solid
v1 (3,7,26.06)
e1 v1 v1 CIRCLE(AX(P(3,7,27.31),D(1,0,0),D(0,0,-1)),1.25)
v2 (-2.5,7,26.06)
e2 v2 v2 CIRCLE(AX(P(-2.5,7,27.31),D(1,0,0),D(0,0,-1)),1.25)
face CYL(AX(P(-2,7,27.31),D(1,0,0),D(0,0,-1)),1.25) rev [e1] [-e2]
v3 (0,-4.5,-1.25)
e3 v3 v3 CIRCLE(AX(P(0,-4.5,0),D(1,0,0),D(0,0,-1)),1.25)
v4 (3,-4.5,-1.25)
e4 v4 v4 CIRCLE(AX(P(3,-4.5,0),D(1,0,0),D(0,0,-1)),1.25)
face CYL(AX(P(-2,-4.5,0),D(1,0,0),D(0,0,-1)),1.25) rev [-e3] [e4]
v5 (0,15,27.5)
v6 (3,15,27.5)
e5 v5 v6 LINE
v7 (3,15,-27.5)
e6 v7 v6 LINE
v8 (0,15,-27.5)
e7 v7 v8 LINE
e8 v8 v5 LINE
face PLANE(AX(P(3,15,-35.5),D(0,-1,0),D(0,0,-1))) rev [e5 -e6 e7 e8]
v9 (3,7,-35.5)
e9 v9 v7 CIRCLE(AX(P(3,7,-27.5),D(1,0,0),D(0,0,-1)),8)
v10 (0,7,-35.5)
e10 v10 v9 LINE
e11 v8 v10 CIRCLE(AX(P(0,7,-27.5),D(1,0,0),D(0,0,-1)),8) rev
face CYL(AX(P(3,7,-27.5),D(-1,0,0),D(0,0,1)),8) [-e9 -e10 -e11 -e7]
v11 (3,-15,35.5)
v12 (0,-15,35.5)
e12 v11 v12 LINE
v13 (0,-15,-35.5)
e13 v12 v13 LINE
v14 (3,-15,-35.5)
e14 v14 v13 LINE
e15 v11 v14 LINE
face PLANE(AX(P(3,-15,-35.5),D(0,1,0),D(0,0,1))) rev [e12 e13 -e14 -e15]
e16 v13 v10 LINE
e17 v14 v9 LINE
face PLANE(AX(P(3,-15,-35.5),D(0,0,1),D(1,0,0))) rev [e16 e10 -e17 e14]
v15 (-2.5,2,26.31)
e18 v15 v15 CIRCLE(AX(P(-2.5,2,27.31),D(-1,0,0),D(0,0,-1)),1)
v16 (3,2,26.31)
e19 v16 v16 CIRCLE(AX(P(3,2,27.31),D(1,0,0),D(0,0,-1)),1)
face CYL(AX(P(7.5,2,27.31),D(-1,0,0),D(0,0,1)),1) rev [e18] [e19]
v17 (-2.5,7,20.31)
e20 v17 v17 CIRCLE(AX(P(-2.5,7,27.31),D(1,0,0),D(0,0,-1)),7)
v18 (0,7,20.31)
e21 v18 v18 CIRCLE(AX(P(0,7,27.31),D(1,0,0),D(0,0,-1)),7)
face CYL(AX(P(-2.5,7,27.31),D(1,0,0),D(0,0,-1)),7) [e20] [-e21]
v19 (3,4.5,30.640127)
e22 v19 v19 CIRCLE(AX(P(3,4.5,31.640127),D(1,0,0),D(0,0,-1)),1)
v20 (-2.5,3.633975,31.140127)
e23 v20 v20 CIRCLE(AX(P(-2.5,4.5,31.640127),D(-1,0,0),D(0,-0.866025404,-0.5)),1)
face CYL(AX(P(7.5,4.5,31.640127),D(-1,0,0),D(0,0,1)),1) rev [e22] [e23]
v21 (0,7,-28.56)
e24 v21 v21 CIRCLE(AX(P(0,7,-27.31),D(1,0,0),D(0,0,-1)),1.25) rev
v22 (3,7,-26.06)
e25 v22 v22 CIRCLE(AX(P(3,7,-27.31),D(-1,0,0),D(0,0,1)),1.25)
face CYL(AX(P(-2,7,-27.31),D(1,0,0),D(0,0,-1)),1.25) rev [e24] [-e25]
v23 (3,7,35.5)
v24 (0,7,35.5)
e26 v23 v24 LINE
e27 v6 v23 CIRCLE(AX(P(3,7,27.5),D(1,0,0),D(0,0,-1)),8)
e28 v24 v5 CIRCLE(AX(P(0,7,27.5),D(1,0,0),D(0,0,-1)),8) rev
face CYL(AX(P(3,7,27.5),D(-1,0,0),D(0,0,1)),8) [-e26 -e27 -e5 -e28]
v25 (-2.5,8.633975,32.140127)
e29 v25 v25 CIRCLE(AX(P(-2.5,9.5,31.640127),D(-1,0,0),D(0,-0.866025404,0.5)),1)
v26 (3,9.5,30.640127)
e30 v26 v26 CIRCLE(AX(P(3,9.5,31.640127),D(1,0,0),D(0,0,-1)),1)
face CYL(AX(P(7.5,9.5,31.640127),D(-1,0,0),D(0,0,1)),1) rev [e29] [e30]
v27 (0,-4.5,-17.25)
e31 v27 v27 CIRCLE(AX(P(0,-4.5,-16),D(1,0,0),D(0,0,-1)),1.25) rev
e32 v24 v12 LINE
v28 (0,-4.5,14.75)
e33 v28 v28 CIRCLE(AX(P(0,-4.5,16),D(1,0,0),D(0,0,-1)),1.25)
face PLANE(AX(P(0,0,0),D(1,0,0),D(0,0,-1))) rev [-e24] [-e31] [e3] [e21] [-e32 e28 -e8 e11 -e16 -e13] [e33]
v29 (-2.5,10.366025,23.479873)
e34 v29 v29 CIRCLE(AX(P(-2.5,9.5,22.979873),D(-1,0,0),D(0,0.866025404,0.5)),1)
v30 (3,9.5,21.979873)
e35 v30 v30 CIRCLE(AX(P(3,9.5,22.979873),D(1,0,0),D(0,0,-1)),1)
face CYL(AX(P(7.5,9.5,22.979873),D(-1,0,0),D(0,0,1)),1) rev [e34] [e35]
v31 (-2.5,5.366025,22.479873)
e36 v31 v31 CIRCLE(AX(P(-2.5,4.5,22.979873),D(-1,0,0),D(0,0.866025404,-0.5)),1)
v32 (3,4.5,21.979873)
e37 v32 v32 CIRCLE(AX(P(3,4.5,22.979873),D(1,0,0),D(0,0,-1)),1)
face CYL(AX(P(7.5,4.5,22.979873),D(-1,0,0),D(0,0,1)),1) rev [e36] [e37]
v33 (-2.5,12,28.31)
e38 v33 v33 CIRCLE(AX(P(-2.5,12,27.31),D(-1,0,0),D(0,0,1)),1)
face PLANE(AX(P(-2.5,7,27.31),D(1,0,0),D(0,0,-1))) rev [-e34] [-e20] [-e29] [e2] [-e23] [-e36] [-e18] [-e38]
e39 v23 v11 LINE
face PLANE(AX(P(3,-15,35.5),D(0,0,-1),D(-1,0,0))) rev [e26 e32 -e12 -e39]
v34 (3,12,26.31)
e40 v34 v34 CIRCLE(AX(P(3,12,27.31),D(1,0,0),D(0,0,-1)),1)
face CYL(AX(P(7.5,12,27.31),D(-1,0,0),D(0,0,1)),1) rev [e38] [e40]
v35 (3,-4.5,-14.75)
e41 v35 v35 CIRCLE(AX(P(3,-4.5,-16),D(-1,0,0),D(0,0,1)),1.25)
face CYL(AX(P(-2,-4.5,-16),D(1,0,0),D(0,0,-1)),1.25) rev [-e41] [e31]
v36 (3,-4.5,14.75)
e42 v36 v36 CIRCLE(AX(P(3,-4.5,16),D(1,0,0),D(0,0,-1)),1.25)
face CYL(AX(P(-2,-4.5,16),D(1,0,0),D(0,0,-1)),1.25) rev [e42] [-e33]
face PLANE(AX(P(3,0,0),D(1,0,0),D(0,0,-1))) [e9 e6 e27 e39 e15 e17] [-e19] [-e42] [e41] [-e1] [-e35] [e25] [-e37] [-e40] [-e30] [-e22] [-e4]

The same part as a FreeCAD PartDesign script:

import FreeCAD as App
import Part
import Sketcher
Q = App.Units.Quantity


def edges_at(feature, points):
    """Names of the edges that pass closest to the given points."""
    edges = feature.Shape.Edges
    near = lambda p: min(range(len(edges)), key=lambda i: edges[i].distToShape(Part.Vertex(*p))[0])
    return sorted({f"Edge{near(p) + 1}" for p in points})


def add_polygon(sketch, points):
    """Adds a closed chain of lines whose ends are joined by coincident constraints."""
    first, n = sketch.GeometryCount, len(points)
    for a, b in zip(points, points[1:] + points[:1]):
        sketch.addGeometry(Part.LineSegment(App.Vector(*a, 0), App.Vector(*b, 0)), False)
    for i in range(n):
        sketch.addConstraint(Sketcher.Constraint("Coincident", first + i, 2, first + (i + 1) % n, 1))

doc = App.newDocument("Part")
body = doc.addObject("PartDesign::Body", "Body")

# Sketch on YZ plane
sketch1 = body.newObject("Sketcher::SketchObject", "Sketch")
sketch1.AttachmentSupport = (doc.getObject("YZ_Plane"), [""])
sketch1.MapMode = "FlatFace"
add_polygon(sketch1, [(15, 36), (-15, 36), (-15, -36), (15, -36)])  # lines 0-3
sketch1.addConstraint([
    Sketcher.Constraint("Horizontal", 0),
    Sketcher.Constraint("Vertical", 1),
    Sketcher.Constraint("Horizontal", 2),
    Sketcher.Constraint("Vertical", 3),
    Sketcher.Constraint("Symmetric", 0, 2, 2, 2, -1, 1),
    Sketcher.Constraint("DistanceX", 0, 2, 0, 1, Q("30 mm")),
    Sketcher.Constraint("DistanceY", 1, 2, 1, 1, Q("71 mm")),
])
pad1 = body.newObject("PartDesign::Pad", "Pad")
pad1.Profile = sketch1
pad1.Length = 3

# Sketch on YZ plane
sketch2 = body.newObject("Sketcher::SketchObject", "Sketch001")
sketch2.AttachmentSupport = (doc.getObject("YZ_Plane"), [""])
sketch2.MapMode = "FlatFace"
sketch2.AttachmentOffset = App.Placement(App.Vector(0, 0, 3), App.Rotation())
sketch2.addGeometry([
    Part.Circle(App.Vector(7, 27.3, 0), App.Vector(0, 0, 1), 1.2),
    Part.Circle(App.Vector(-4.5, 0, 0), App.Vector(0, 0, 1), 1.2),
    Part.Circle(App.Vector(-4.5, 16, 0), App.Vector(0, 0, 1), 1.2),
], False)
sketch2.addConstraint([
    Sketcher.Constraint("Equal", 0, 1),
    Sketcher.Constraint("Equal", 1, 2),
    Sketcher.Constraint("PointOnObject", 1, 3, -1),
    Sketcher.Constraint("Vertical", 1, 3, 2, 3),
    Sketcher.Constraint("Diameter", 0, Q("2.5 mm")),
    Sketcher.Constraint("DistanceX", -1, 1, 0, 3, Q("7 mm")),
    Sketcher.Constraint("DistanceY", -1, 1, 2, 3, Q("16 mm")),
    Sketcher.Constraint("DistanceX", 1, 3, -1, 1, Q("4.5 mm")),
    Sketcher.Constraint("DistanceY", -1, 1, 0, 3, Q("27.31 mm")),
])
pocket1 = body.newObject("PartDesign::Pocket", "Pocket")
pocket1.Profile = sketch2
pocket1.Length = 5
doc.recompute()

mirrored = body.newObject("PartDesign::Mirrored", "Mirrored")
mirrored.Originals = [pocket1]
mirrored.MirrorPlane = (doc.getObject("XY_Plane"), [""])
body.Tip = mirrored
doc.recompute()

fillet = body.newObject("PartDesign::Fillet", "Fillet")
fillet.Base = (mirrored, edges_at(mirrored, [(1.5, 15, 35.5), (1.5, 15, -35.5)]))
fillet.Radius = 8

# Sketch on YZ plane
sketch3 = body.newObject("Sketcher::SketchObject", "Sketch002")
sketch3.AttachmentSupport = (doc.getObject("YZ_Plane"), [""])
sketch3.MapMode = "FlatFace"
sketch3.addGeometry([
    Part.Circle(App.Vector(7, 27.3, 0), App.Vector(0, 0, 1), 7),
    Part.Circle(App.Vector(7, 27.3, 0), App.Vector(0, 0, 1), 1.2),
], False)
sketch3.addConstraint([
    Sketcher.Constraint("Coincident", 1, 3, 0, 3),
    Sketcher.Constraint("Diameter", 0, Q("14 mm")),
    Sketcher.Constraint("Diameter", 1, Q("2.5 mm")),
    Sketcher.Constraint("DistanceX", -1, 1, 0, 3, Q("7 mm")),
    Sketcher.Constraint("DistanceY", -1, 1, 0, 3, Q("27.31 mm")),
])
pad2 = body.newObject("PartDesign::Pad", "Pad001")
pad2.Profile = sketch3
pad2.Length = 2.5
pad2.Reversed = True

# Sketch on YZ plane
sketch4 = body.newObject("Sketcher::SketchObject", "Sketch003")
sketch4.AttachmentSupport = (doc.getObject("YZ_Plane"), [""])
sketch4.MapMode = "FlatFace"
sketch4.AttachmentOffset = App.Placement(App.Vector(0, 0, -2.5), App.Rotation())
sketch4.addGeometry(Part.Circle(App.Vector(12, 27.3, 0), App.Vector(0, 0, 1), 1), False)
sketch4.addConstraint([
    Sketcher.Constraint("Diameter", 0, Q("2 mm")),
    Sketcher.Constraint("DistanceX", -1, 1, 0, 3, Q("12 mm")),
    Sketcher.Constraint("DistanceY", -1, 1, 0, 3, Q("27.31 mm")),
])
pocket2 = body.newObject("PartDesign::Pocket", "Pocket001")
pocket2.Profile = sketch4
pocket2.Length = 10
pocket2.Reversed = True
doc.recompute()

datumline = body.newObject("PartDesign::Line", "DatumLine")
datumline.Placement = App.Placement(App.Vector(0, 7, 27.31), App.Rotation(App.Vector(0, 0, 1), App.Vector(1, 0, 0)))
polarpattern = body.newObject("PartDesign::PolarPattern", "PolarPattern")
polarpattern.Originals = [pocket2]
polarpattern.Axis = (datumline, [""])
polarpattern.Angle = 360
polarpattern.Occurrences = 6
body.Tip = polarpattern

doc.recompute()
